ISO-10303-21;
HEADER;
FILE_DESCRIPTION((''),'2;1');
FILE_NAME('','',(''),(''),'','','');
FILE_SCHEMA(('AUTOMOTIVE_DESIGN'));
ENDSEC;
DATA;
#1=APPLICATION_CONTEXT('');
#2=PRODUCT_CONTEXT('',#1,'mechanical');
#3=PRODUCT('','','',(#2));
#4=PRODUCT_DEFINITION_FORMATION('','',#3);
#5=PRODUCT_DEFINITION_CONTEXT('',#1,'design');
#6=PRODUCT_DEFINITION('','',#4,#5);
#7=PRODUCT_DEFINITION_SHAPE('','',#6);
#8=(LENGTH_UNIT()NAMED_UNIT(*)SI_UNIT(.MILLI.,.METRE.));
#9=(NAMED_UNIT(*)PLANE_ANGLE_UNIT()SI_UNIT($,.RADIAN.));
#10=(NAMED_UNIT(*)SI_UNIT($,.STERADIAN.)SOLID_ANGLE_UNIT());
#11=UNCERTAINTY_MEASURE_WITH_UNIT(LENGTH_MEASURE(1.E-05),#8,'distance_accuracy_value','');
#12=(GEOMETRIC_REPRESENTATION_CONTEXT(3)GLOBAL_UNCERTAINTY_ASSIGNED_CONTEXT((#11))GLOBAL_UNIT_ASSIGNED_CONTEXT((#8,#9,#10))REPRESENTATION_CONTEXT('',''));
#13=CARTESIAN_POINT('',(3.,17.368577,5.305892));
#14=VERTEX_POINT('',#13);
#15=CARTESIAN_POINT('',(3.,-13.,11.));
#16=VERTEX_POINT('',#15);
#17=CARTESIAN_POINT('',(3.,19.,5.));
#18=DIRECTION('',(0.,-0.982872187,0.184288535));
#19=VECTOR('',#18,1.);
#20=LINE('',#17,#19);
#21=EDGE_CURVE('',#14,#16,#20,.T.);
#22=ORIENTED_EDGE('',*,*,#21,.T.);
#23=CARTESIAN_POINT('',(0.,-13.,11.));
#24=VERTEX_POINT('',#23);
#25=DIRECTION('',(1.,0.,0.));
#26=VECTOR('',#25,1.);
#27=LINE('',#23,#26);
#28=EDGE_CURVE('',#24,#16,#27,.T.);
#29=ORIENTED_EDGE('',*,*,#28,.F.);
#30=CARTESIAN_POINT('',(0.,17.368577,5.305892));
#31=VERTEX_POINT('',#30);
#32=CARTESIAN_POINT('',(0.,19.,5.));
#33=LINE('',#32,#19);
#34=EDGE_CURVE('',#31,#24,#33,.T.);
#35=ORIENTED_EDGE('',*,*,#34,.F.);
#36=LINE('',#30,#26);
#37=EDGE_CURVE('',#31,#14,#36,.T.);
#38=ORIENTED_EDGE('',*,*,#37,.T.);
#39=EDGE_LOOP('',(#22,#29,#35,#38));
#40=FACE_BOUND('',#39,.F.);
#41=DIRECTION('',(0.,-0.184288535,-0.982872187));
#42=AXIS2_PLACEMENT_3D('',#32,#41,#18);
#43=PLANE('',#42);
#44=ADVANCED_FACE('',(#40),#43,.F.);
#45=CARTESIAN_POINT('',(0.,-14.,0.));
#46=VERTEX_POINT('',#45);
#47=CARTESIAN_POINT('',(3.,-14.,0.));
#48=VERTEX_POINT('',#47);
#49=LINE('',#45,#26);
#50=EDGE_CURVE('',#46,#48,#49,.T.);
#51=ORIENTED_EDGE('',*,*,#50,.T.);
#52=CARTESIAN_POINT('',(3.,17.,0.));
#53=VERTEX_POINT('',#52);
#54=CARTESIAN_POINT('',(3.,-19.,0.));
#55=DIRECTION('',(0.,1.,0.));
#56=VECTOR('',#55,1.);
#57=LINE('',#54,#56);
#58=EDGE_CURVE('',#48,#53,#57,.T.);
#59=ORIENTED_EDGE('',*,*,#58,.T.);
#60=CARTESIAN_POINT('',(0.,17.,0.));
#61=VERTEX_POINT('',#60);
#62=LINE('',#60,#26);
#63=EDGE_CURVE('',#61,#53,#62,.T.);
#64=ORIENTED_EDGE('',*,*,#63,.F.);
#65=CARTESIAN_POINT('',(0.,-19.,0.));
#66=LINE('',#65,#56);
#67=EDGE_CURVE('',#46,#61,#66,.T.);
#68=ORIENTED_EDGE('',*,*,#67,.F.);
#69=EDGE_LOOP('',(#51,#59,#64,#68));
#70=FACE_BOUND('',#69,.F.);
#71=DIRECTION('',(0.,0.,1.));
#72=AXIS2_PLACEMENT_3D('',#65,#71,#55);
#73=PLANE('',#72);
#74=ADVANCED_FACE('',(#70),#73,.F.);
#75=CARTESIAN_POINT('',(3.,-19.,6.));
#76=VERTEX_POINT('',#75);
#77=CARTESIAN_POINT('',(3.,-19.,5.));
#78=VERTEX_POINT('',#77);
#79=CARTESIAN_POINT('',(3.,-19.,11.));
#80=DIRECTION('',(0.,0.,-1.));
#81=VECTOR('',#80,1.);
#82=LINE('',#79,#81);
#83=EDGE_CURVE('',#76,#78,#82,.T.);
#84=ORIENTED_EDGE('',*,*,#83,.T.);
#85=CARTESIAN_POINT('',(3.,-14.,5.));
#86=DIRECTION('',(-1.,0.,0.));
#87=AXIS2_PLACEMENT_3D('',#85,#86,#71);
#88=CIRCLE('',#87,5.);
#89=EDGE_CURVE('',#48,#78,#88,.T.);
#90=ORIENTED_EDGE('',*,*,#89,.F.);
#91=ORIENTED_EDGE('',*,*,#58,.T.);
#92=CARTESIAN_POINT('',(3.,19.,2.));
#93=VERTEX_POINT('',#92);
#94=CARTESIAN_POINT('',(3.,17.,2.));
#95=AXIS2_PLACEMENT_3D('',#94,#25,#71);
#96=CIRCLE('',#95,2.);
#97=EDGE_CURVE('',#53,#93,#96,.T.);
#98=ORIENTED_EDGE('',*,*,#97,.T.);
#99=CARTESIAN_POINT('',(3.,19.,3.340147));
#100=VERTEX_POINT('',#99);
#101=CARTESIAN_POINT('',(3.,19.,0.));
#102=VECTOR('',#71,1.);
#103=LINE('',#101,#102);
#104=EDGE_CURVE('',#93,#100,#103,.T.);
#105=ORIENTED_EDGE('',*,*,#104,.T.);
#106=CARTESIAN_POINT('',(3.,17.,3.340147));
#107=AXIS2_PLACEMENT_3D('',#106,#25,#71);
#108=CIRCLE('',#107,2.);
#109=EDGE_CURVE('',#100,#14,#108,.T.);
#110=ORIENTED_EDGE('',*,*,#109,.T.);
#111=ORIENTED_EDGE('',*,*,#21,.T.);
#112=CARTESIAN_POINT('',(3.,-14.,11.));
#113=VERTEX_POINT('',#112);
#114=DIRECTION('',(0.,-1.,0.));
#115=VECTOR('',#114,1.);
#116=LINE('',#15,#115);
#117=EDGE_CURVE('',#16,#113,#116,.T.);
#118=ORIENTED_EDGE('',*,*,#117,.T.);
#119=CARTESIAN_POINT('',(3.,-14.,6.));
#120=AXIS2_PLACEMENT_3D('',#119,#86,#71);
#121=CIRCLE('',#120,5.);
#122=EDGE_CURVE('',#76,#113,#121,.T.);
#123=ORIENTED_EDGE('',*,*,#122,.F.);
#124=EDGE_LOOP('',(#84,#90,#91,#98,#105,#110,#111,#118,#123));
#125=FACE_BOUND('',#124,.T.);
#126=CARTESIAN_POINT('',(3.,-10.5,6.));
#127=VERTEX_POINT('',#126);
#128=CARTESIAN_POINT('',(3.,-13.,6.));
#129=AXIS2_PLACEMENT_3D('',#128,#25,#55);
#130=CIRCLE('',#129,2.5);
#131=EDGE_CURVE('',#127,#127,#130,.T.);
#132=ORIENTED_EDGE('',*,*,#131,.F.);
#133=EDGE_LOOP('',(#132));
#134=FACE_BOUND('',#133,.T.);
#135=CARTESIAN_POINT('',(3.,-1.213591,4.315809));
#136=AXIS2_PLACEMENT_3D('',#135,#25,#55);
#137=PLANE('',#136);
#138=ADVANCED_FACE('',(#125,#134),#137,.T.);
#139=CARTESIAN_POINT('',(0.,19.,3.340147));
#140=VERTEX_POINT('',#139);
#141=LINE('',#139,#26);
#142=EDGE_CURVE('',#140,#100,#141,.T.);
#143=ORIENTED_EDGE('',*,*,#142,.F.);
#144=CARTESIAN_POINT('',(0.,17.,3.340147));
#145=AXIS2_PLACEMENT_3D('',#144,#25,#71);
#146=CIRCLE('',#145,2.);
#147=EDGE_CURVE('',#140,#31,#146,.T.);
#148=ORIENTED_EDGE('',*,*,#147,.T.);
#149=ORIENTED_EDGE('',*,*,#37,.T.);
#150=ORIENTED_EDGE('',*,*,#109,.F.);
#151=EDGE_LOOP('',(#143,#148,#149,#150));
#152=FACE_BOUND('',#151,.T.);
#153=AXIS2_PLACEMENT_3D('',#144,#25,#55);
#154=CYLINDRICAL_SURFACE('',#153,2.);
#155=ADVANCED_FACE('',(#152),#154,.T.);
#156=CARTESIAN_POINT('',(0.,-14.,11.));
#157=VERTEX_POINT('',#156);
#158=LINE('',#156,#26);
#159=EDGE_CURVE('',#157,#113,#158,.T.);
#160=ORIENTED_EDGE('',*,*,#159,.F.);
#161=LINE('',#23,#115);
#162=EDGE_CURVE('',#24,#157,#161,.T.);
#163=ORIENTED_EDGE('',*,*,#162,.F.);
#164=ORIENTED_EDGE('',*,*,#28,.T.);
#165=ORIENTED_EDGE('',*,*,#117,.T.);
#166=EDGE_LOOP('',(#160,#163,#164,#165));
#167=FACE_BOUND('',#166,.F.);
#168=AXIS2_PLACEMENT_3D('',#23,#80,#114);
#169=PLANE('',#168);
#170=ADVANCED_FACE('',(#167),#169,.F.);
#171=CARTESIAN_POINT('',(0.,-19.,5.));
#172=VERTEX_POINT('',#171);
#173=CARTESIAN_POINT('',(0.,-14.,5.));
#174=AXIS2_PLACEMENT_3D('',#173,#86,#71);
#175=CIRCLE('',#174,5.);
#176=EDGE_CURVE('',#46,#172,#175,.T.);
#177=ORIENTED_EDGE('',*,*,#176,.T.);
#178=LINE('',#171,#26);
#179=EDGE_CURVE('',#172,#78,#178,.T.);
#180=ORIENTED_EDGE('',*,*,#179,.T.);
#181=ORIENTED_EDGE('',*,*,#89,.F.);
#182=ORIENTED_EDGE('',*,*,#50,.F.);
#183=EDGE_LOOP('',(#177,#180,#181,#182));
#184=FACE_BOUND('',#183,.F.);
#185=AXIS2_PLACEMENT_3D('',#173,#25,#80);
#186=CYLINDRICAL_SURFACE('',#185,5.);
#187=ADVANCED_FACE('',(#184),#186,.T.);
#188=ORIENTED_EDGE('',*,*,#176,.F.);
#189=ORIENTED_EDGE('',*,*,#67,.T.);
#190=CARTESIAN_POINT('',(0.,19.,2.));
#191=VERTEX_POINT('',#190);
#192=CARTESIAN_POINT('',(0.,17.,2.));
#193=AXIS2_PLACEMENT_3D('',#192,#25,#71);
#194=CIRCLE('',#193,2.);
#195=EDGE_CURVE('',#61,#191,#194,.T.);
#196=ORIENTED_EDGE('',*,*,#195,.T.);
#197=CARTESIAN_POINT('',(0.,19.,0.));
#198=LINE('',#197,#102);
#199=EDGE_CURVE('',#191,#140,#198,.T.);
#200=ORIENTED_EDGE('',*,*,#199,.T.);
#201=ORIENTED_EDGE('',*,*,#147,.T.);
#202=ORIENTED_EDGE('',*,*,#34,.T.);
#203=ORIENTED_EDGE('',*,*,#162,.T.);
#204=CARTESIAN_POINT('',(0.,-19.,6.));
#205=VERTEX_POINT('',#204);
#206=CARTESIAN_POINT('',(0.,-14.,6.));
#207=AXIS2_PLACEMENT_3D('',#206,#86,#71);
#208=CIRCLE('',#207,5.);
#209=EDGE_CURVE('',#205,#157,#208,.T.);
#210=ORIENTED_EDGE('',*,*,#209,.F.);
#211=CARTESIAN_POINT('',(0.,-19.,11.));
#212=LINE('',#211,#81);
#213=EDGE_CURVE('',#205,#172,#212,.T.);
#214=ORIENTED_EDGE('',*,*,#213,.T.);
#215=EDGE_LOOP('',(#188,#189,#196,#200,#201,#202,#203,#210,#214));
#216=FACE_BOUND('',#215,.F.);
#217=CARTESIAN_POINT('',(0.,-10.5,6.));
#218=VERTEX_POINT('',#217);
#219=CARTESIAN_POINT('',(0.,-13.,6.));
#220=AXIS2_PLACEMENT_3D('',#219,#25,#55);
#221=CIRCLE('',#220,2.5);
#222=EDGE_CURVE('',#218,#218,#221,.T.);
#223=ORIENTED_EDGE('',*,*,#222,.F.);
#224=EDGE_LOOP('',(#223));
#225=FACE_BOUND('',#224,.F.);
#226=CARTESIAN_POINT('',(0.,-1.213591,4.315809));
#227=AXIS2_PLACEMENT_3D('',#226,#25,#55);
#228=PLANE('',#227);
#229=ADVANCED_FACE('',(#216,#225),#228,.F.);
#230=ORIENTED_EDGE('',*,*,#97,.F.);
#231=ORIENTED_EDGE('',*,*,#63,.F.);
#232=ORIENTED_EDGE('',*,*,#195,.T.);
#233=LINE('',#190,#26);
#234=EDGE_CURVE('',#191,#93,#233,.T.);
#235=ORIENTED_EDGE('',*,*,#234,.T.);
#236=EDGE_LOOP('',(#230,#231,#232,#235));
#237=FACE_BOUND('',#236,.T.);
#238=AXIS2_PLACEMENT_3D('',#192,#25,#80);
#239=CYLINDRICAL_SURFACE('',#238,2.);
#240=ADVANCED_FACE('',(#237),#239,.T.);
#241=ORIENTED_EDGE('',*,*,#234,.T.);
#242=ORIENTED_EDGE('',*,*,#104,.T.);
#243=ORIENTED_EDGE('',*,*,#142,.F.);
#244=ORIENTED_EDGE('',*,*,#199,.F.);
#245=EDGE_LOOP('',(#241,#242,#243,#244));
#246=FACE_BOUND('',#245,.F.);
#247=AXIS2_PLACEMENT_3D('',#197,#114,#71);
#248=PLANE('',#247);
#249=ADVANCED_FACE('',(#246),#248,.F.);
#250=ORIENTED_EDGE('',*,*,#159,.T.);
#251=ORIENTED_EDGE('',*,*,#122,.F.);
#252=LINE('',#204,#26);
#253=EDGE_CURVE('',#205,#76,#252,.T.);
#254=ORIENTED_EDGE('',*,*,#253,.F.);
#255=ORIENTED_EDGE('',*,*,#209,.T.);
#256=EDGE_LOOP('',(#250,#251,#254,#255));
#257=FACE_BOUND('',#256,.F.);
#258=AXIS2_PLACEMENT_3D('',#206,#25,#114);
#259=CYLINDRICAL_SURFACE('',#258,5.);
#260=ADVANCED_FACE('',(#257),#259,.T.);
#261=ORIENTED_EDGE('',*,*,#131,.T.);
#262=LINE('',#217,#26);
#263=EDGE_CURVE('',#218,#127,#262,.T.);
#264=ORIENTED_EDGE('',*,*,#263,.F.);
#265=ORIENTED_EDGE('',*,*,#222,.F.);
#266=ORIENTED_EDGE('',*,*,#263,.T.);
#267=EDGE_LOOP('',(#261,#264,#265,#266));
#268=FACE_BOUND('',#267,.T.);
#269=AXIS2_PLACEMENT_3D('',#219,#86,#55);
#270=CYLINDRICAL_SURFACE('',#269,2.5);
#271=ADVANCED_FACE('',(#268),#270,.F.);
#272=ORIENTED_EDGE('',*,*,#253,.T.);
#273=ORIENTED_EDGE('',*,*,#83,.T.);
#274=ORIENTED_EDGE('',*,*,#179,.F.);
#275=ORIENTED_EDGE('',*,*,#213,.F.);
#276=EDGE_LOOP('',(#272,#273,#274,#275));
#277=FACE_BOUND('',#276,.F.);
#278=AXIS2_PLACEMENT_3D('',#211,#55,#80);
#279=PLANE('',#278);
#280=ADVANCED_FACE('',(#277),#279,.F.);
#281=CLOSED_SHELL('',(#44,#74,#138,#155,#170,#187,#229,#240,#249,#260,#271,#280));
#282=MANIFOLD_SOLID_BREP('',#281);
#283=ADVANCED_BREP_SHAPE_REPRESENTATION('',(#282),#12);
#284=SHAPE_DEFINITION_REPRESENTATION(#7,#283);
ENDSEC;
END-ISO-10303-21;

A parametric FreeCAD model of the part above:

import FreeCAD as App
import Part
import Sketcher

V = App.Vector


def edges_at(feature, points):
    """Names of the edges that pass closest to the given points."""
    edges = feature.Shape.Edges
    near = lambda p: min(range(len(edges)), key=lambda i: edges[i].distToShape(Part.Vertex(*p))[0])
    return sorted({f"Edge{near(p) + 1}" for p in points})


def add_polygon(sketch, points):
    """Adds a closed chain of lines whose ends are joined by coincident constraints."""
    first, n = sketch.GeometryCount, len(points)
    for a, b in zip(points, points[1:] + points[:1]):
        sketch.addGeometry(Part.LineSegment(App.Vector(*a, 0), App.Vector(*b, 0)), False)
    for i in range(n):
        sketch.addConstraint(Sketcher.Constraint("Coincident", first + i, 2, first + (i + 1) % n, 1))

doc = App.newDocument("Part")
body = doc.addObject("PartDesign::Body", "Body")

sketch1 = body.newObject("Sketcher::SketchObject", "Sketch")
sketch1.AttachmentSupport = (doc.getObject("YZ_Plane"), [""])
sketch1.MapMode = "FlatFace"
add_polygon(sketch1, [(-19, 11), (-19, 0), (19, 0), (19, 5), (-13, 11)])
sketch1.addGeometry(Part.Circle(V(-13, 6, 0), V(0, 0, 1), 2.5), False)
sketch1.addConstraint(Sketcher.Constraint("Vertical", 0))
sketch1.addConstraint(Sketcher.Constraint("Horizontal", 1))
sketch1.addConstraint(Sketcher.Constraint("Vertical", 2))
sketch1.addConstraint(Sketcher.Constraint("Horizontal", 4))
sketch1.addConstraint(Sketcher.Constraint("Symmetric", 0, 2, 1, 2, -1, 1))
sketch1.addConstraint(Sketcher.Constraint("Vertical", 5, 3, 3, 2))
sketch1.addConstraint(Sketcher.Constraint("Diameter", 5, 5.0))
sketch1.addConstraint(Sketcher.Constraint("DistanceX", 1, 1, 1, 2, 38.0))
sketch1.addConstraint(Sketcher.Constraint("DistanceX", 4, 2, 4, 1, 6.0))
sketch1.addConstraint(Sketcher.Constraint("DistanceY", 0, 2, 0, 1, 11.0))
sketch1.addConstraint(Sketcher.Constraint("DistanceY", 2, 1, 2, 2, 5.0))
sketch1.addConstraint(Sketcher.Constraint("DistanceY", -1, 1, 5, 3, 6.0))
pad1 = body.newObject("PartDesign::Pad", "Pad")
pad1.Profile = sketch1
pad1.Length = 3
doc.recompute()

fillet = body.newObject("PartDesign::Fillet", "Fillet")
fillet.Base = (pad1, edges_at(pad1, [(1.5, 19, 0)]))
fillet.Radius = 2
doc.recompute()

fillet2 = body.newObject("PartDesign::Fillet", "Fillet001")
fillet2.Base = (fillet, edges_at(fillet, [(1.5, -19, 11), (1.5, -19, 0)]))
fillet2.Radius = 5
doc.recompute()

fillet3 = body.newObject("PartDesign::Fillet", "Fillet002")
fillet3.Base = (fillet2, edges_at(fillet2, [(1.5, 19, 5)]))
fillet3.Radius = 2

doc.recompute()
